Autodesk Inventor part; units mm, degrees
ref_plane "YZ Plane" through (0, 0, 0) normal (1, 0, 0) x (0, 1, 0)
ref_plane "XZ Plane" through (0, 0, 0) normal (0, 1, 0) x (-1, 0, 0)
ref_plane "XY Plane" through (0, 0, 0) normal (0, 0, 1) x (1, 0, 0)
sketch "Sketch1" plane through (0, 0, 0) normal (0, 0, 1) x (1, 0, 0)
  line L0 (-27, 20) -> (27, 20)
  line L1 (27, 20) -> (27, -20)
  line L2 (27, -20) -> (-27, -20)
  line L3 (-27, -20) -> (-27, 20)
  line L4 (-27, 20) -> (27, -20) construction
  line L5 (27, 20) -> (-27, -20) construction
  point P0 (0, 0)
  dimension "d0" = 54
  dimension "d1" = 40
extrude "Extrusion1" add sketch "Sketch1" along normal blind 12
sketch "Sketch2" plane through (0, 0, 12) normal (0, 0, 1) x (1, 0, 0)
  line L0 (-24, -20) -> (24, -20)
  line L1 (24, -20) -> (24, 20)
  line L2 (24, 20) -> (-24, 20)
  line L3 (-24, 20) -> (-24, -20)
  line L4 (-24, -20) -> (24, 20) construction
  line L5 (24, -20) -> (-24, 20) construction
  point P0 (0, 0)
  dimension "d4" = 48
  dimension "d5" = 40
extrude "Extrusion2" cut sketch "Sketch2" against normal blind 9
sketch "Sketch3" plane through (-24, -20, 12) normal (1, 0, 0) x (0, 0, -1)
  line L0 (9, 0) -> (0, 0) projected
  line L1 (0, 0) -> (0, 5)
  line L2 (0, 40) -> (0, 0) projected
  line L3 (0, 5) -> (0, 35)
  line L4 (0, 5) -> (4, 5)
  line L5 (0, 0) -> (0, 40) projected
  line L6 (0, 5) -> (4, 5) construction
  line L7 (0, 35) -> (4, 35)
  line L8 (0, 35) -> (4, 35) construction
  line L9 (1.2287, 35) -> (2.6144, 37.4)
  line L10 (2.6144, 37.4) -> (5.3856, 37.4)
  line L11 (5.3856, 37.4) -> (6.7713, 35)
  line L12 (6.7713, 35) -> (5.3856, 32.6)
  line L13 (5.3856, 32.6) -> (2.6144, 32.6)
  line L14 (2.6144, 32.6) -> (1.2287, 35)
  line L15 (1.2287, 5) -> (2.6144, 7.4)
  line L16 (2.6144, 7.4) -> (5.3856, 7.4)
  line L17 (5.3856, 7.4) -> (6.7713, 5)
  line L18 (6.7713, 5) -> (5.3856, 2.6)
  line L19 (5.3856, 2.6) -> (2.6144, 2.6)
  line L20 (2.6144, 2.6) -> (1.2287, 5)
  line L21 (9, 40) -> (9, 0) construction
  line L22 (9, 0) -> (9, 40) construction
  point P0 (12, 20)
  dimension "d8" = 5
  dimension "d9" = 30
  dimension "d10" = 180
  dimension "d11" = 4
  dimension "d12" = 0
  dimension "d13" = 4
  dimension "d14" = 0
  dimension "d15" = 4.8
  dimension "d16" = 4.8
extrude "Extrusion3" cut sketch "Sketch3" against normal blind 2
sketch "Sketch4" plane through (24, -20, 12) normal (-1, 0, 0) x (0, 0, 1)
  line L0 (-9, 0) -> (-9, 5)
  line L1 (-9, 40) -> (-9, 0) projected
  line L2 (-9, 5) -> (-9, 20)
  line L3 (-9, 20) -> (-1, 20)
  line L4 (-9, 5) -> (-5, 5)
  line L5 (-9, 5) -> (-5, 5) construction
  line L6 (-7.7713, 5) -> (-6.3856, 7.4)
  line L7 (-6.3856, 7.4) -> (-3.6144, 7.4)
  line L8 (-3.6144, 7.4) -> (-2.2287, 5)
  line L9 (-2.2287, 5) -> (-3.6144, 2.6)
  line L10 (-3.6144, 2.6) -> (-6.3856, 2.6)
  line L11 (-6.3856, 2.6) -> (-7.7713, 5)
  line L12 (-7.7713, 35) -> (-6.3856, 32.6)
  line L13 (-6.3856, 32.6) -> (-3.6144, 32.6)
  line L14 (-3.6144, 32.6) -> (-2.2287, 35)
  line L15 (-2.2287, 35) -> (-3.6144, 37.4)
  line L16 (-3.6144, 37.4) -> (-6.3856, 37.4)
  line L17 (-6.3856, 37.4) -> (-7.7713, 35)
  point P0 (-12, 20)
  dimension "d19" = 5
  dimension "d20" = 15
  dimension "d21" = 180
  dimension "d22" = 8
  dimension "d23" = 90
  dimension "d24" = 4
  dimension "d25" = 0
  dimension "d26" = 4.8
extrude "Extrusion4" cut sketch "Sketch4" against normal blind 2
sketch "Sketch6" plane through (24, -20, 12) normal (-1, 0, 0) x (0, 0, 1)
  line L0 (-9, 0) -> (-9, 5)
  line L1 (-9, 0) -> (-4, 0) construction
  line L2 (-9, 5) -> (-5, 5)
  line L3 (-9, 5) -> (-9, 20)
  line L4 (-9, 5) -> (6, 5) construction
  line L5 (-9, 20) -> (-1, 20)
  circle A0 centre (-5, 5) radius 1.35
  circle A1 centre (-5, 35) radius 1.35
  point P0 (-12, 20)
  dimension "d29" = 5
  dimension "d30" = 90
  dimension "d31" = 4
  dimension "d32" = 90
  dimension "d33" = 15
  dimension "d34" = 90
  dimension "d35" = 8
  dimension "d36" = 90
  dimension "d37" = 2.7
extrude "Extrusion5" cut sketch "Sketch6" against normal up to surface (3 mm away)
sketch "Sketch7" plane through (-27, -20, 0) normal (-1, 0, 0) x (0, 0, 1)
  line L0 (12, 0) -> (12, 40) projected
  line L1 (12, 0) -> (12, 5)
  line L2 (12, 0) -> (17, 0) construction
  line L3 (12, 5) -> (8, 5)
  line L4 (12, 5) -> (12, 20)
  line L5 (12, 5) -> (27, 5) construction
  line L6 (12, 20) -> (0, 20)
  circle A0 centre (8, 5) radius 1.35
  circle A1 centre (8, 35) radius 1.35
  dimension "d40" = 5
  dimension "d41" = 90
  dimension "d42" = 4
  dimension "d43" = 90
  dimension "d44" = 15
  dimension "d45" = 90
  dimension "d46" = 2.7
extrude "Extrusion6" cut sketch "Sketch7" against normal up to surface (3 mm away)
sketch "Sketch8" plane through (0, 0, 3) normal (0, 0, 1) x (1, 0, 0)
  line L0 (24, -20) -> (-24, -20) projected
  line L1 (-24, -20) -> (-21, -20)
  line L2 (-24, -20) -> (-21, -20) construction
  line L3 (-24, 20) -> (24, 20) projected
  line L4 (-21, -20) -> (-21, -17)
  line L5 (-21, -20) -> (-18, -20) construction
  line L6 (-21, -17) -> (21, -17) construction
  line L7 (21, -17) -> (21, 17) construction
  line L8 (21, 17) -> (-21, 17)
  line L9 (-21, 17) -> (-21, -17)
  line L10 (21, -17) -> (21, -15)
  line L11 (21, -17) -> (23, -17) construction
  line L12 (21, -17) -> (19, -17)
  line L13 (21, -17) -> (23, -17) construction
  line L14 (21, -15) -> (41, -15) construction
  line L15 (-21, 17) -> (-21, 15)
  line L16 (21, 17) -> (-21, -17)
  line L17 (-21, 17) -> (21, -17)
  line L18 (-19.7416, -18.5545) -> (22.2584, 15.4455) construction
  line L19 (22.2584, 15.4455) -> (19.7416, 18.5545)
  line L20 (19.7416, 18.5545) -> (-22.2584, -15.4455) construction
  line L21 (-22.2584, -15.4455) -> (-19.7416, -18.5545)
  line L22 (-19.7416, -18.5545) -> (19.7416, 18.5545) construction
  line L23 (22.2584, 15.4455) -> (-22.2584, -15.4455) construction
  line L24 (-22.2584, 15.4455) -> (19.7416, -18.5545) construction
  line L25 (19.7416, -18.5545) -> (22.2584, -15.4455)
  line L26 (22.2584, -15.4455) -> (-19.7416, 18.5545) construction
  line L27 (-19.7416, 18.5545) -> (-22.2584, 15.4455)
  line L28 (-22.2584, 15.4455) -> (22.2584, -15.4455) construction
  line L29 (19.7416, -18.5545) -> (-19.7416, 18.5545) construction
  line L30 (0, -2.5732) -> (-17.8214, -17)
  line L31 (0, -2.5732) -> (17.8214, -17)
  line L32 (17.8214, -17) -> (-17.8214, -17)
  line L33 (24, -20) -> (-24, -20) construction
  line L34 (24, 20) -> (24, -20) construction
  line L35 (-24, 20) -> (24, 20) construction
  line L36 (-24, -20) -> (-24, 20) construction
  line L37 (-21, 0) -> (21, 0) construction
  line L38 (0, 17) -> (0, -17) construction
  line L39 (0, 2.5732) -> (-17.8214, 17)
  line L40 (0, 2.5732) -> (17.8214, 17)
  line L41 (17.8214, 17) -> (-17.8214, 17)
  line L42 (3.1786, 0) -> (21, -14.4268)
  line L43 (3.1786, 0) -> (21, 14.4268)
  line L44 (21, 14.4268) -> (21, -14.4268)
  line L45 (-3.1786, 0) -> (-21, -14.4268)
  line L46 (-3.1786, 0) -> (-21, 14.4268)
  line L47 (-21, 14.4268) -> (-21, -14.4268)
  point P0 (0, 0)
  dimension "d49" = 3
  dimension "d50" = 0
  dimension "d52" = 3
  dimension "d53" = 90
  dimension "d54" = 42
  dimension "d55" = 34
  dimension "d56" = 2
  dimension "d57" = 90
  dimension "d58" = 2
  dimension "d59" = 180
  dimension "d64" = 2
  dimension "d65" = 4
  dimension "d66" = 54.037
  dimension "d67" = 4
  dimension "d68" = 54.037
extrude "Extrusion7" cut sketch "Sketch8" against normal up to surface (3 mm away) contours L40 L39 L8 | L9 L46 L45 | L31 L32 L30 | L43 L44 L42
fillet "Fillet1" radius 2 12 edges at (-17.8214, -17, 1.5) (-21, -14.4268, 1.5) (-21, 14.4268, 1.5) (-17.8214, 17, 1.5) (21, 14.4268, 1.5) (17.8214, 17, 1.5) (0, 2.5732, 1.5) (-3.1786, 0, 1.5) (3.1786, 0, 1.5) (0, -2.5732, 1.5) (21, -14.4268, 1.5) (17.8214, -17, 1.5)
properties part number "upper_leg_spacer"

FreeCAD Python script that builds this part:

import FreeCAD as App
import Part
import Sketcher

V = App.Vector
Q = App.Units.Quantity


def edges_at(feature, points):
    """Names of the edges that pass closest to the given points."""
    edges = feature.Shape.Edges
    near = lambda p: min(range(len(edges)), key=lambda i: edges[i].distToShape(Part.Vertex(*p))[0])
    return sorted({f"Edge{near(p) + 1}" for p in points})


def add_polygon(sketch, points):
    """Adds a closed chain of lines whose ends are joined by coincident constraints."""
    first, n = sketch.GeometryCount, len(points)
    for a, b in zip(points, points[1:] + points[:1]):
        sketch.addGeometry(Part.LineSegment(App.Vector(*a, 0), App.Vector(*b, 0)), False)
    for i in range(n):
        sketch.addConstraint(Sketcher.Constraint("Coincident", first + i, 2, first + (i + 1) % n, 1))

doc = App.newDocument("Part")
body = doc.addObject("PartDesign::Body", "Body")

sketch1 = body.newObject("Sketcher::SketchObject", "Sketch")
sketch1.AttachmentSupport = (doc.getObject("XY_Plane"), [""])
sketch1.MapMode = "FlatFace"
add_polygon(sketch1, [(27, 20), (-27, 20), (-27, -20), (27, -20)])
sketch1.addConstraint([
    Sketcher.Constraint("Horizontal", 0),
    Sketcher.Constraint("Vertical", 1),
    Sketcher.Constraint("Horizontal", 2),
    Sketcher.Constraint("Vertical", 3),
    Sketcher.Constraint("Symmetric", 0, 2, 2, 2, -1, 1),
    Sketcher.Constraint("DistanceX", 0, 2, 0, 1, 54.0),
    Sketcher.Constraint("DistanceY", 1, 2, 1, 1, 40.0),
])
pad1 = body.newObject("PartDesign::Pad", "Pad")
pad1.Profile = sketch1
pad1.Length = 12

sketch2 = body.newObject("Sketcher::SketchObject", "Sketch001")
sketch2.AttachmentSupport = (doc.getObject("XY_Plane"), [""])
sketch2.MapMode = "FlatFace"
sketch2.AttachmentOffset = App.Placement(V(0, 0, 12), App.Rotation())
add_polygon(sketch2, [(-24, 20), (-24, -20), (24, -20), (24, 20)])
sketch2.addConstraint([
    Sketcher.Constraint("Vertical", 0),
    Sketcher.Constraint("Horizontal", 1),
    Sketcher.Constraint("Vertical", 2),
    Sketcher.Constraint("Horizontal", 3),
    Sketcher.Constraint("Symmetric", 0, 2, 2, 2, -1, 1),
    Sketcher.Constraint("DistanceX", 1, 1, 1, 2, 48.0),
    Sketcher.Constraint("DistanceY", 0, 2, 0, 1, 40.0),
])
pocket1 = body.newObject("PartDesign::Pocket", "Pocket")
pocket1.Profile = sketch2
pocket1.Length = 9

sketch3 = body.newObject("Sketcher::SketchObject", "Sketch002")
sketch3.AttachmentSupport = (doc.getObject("YZ_Plane"), [""])
sketch3.MapMode = "FlatFace"
sketch3.AttachmentOffset = App.Placement(V(0, 0, -24), App.Rotation())
add_polygon(sketch3, [(-12.6, 9.3856), (-15, 10.7713), (-17.4, 9.3856), (-17.4, 6.6144), (-15, 5.2287), (-12.6, 6.6144)])
add_polygon(sketch3, [(17.4, 9.3856), (15, 10.7713), (12.6, 9.3856), (12.6, 6.6144), (15, 5.2287), (17.4, 6.6144)])
sketch3.addConstraint([
    Sketcher.Constraint("Vertical", 2),
    Sketcher.Constraint("Vertical", 5),
    Sketcher.Constraint("Vertical", 8),
    Sketcher.Constraint("Vertical", 11),
    Sketcher.Constraint("Symmetric", 0, 2, 6, 2, -2),
    Sketcher.Constraint("Symmetric", 5, 2, 7, 2, -2),
    Sketcher.Constraint("Symmetric", 3, 2, 9, 2, -2),
    Sketcher.Constraint("Symmetric", 2, 2, 10, 2, -2),
    Sketcher.Constraint("Parallel", 0, 3),
    Sketcher.Constraint("Parallel", 1, 4),
    Sketcher.Constraint("Parallel", 3, 6),
    Sketcher.Constraint("Parallel", 4, 7),
    Sketcher.Constraint("Parallel", 6, 9),
    Sketcher.Constraint("Horizontal", 2, 2, 4, 2),
    Sketcher.Constraint("Horizontal", 1, 2, 5, 2),
    Sketcher.Constraint("DistanceX", 0, 2, 6, 2, 30.0),
    Sketcher.Constraint("DistanceX", 2, 2, 4, 2, 4.8),
    Sketcher.Constraint("Angle", 0, Q("149.999 deg")),
    Sketcher.Constraint("DistanceY", 2, 2, 2, 1, 2.7712),
    Sketcher.Constraint("DistanceY", -1, 1, 0, 2, 10.7713),
])
pocket2 = body.newObject("PartDesign::Pocket", "Pocket001")
pocket2.Profile = sketch3
pocket2.Length = 2

sketch4 = body.newObject("Sketcher::SketchObject", "Sketch003")
sketch4.AttachmentSupport = (doc.getObject("YZ_Plane"), [""])
sketch4.MapMode = "FlatFace"
sketch4.AttachmentOffset = App.Placement(V(0, 0, 24), App.Rotation())
add_polygon(sketch4, [(-12.6, 5.6144), (-15, 4.2287), (-17.4, 5.6144), (-17.4, 8.3856), (-15, 9.7713), (-12.6, 8.3856)])
add_polygon(sketch4, [(17.4, 5.6144), (15, 4.2287), (12.6, 5.6144), (12.6, 8.3856), (15, 9.7713), (17.4, 8.3856)])
sketch4.addConstraint([
    Sketcher.Constraint("Vertical", 2),
    Sketcher.Constraint("Vertical", 5),
    Sketcher.Constraint("Vertical", 8),
    Sketcher.Constraint("Vertical", 11),
    Sketcher.Constraint("Symmetric", 0, 2, 6, 2, -2),
    Sketcher.Constraint("Symmetric", 5, 2, 7, 2, -2),
    Sketcher.Constraint("Symmetric", 3, 2, 9, 2, -2),
    Sketcher.Constraint("Symmetric", 2, 2, 10, 2, -2),
    Sketcher.Constraint("Parallel", 0, 3),
    Sketcher.Constraint("Parallel", 1, 4),
    Sketcher.Constraint("Parallel", 3, 6),
    Sketcher.Constraint("Parallel", 4, 7),
    Sketcher.Constraint("Parallel", 6, 9),
    Sketcher.Constraint("Horizontal", 2, 2, 4, 2),
    Sketcher.Constraint("Horizontal", 1, 2, 5, 2),
    Sketcher.Constraint("DistanceX", 0, 2, -1, 1, 15.0),
    Sketcher.Constraint("DistanceX", 2, 2, 4, 2, 4.8),
    Sketcher.Constraint("Angle", 0, Q("-149.999 deg")),
    Sketcher.Constraint("DistanceY", 2, 1, 2, 2, 2.7712),
    Sketcher.Constraint("DistanceY", -1, 1, 0, 2, 4.2287),
])
pocket3 = body.newObject("PartDesign::Pocket", "Pocket002")
pocket3.Profile = sketch4
pocket3.Length = 2
pocket3.Reversed = True

sketch5 = body.newObject("Sketcher::SketchObject", "Sketch004")
sketch5.AttachmentSupport = (doc.getObject("YZ_Plane"), [""])
sketch5.MapMode = "FlatFace"
sketch5.AttachmentOffset = App.Placement(V(0, 0, 24), App.Rotation())
sketch5.addGeometry([
    Part.Circle(V(-15, 7, 0), V(0, 0, 1), 1.35),
    Part.Circle(V(15, 7, 0), V(0, 0, 1), 1.35),
], False)
sketch5.addConstraint([
    Sketcher.Constraint("Equal", 0, 1),
    Sketcher.Constraint("Symmetric", 0, 3, 1, 3, -2),
    Sketcher.Constraint("Diameter", 0, 2.7),
    Sketcher.Constraint("DistanceX", 0, 3, -1, 1, 15.0),
    Sketcher.Constraint("DistanceY", -1, 1, 0, 3, 7.0),
])
pocket4 = body.newObject("PartDesign::Pocket", "Pocket003")
pocket4.Profile = sketch5
pocket4.Length = 3
pocket4.Reversed = True

sketch6 = body.newObject("Sketcher::SketchObject", "Sketch005")
sketch6.AttachmentSupport = (doc.getObject("YZ_Plane"), [""])
sketch6.MapMode = "FlatFace"
sketch6.AttachmentOffset = App.Placement(V(0, 0, -27), App.Rotation())
sketch6.addGeometry([
    Part.Circle(V(-15, 8, 0), V(0, 0, 1), 1.35),
    Part.Circle(V(15, 8, 0), V(0, 0, 1), 1.35),
], False)
sketch6.addConstraint([
    Sketcher.Constraint("Equal", 0, 1),
    Sketcher.Constraint("Symmetric", 0, 3, 1, 3, -2),
    Sketcher.Constraint("Diameter", 0, 2.7),
    Sketcher.Constraint("DistanceX", 0, 3, -1, 1, 15.0),
    Sketcher.Constraint("DistanceY", -1, 1, 0, 3, 8.0),
])
pocket5 = body.newObject("PartDesign::Pocket", "Pocket004")
pocket5.Profile = sketch6
pocket5.Length = 3
pocket5.Reversed = True

sketch7 = body.newObject("Sketcher::SketchObject", "Sketch006")
sketch7.AttachmentSupport = (doc.getObject("XY_Plane"), [""])
sketch7.MapMode = "FlatFace"
sketch7.AttachmentOffset = App.Placement(V(0, 0, 3), App.Rotation())
add_polygon(sketch7, [(0, 2.5732), (17.8214, 17), (-17.8214, 17)])
add_polygon(sketch7, [(-21, 14.4268), (-21, -14.4268), (-3.1786, 0)])
add_polygon(sketch7, [(17.8214, -17), (0, -2.5732), (-17.8214, -17)])
add_polygon(sketch7, [(21, 14.4268), (3.1786, 0), (21, -14.4268)])
sketch7.addConstraint([
    Sketcher.Constraint("Horizontal", 1),
    Sketcher.Constraint("Vertical", 3),
    Sketcher.Constraint("Horizontal", 8),
    Sketcher.Constraint("Vertical", 11),
    Sketcher.Constraint("Symmetric", 2, 2, 6, 2, -1, 1),
    Sketcher.Constraint("Symmetric", 0, 2, 7, 2, -1, 1),
    Sketcher.Constraint("Symmetric", 4, 2, 9, 2, -1, 1),
    Sketcher.Constraint("Symmetric", 5, 2, 10, 2, -1, 1),
    Sketcher.Constraint("PointOnObject", 2, 2, -2),
    Sketcher.Constraint("PointOnObject", 4, 2, -1),
    Sketcher.Constraint("Parallel", 0, 4),
    Sketcher.Constraint("Parallel", 2, 5),
    Sketcher.Constraint("Parallel", 5, 6),
    Sketcher.Constraint("Parallel", 7, 9),
    Sketcher.Constraint("Horizontal", 3, 2, 10, 2),
    Sketcher.Constraint("Equal", 2, 4),
    Sketcher.Constraint("DistanceY", 8, 2, 0, 2, 34.0),
    Sketcher.Constraint("DistanceX", 3, 2, -1, 1, 21.0),
    Sketcher.Constraint("Angle", 0, Q("38.991 deg")),
    Sketcher.Constraint("Distance", 0, 22.929),
])
pocket6 = body.newObject("PartDesign::Pocket", "Pocket005")
pocket6.Profile = sketch7
pocket6.Length = 3
doc.recompute()

fillet = body.newObject("PartDesign::Fillet", "Fillet")
fillet.Base = (pocket6, edges_at(pocket6, [
    (-17.821, -17, 1.5),
    (-21, -14.427, 1.5),
    (-21, 14.427, 1.5),
    (-17.821, 17, 1.5),
    (21, 14.427, 1.5),
    (17.821, 17, 1.5),
    (0, 2.573, 1.5),
    (-3.179, 0, 1.5),
    (3.179, 0, 1.5),
    (0, -2.573, 1.5),
    (21, -14.427, 1.5),
    (17.821, -17, 1.5),
]))
fillet.Radius = 2

doc.recompute()
